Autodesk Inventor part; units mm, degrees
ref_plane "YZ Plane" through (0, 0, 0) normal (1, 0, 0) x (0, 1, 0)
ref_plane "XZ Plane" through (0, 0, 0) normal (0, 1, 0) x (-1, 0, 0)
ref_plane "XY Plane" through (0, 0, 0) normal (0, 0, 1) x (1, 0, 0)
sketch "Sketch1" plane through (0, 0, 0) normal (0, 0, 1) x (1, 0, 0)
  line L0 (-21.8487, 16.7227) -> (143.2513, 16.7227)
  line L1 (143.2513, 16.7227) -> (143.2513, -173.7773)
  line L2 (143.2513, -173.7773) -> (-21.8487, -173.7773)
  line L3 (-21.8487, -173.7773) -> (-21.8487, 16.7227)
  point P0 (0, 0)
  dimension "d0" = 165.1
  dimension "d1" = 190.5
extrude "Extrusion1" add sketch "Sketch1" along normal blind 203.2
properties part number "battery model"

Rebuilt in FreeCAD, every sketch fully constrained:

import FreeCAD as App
import Part
import Sketcher
from FreeCAD import Vector
Q = App.Units.Quantity

doc = App.newDocument("Part")
body = doc.addObject("PartDesign::Body", "Body")

# Sketch on XY plane
sketch1 = body.newObject("Sketcher::SketchObject", "Sketch")
sketch1.AttachmentSupport = (doc.getObject("XY_Plane"), [""])
sketch1.MapMode = "FlatFace"
sketch1.addGeometry([
    Part.LineSegment(Vector(143, 17, 0), Vector(-22, 17, 0)),
    Part.LineSegment(Vector(-22, 17, 0), Vector(-22, -174, 0)),
    Part.LineSegment(Vector(-22, -174, 0), Vector(143, -174, 0)),
    Part.LineSegment(Vector(143, -174, 0), Vector(143, 17, 0)),
], False)
sketch1.addConstraint([
    Sketcher.Constraint("Coincident", 0, 2, 1, 1),
    Sketcher.Constraint("Coincident", 1, 2, 2, 1),
    Sketcher.Constraint("Coincident", 2, 2, 3, 1),
    Sketcher.Constraint("Coincident", 3, 2, 0, 1),
    Sketcher.Constraint("Horizontal", 0),
    Sketcher.Constraint("Vertical", 1),
    Sketcher.Constraint("Horizontal", 2),
    Sketcher.Constraint("Vertical", 3),
    Sketcher.Constraint("DistanceX", 0, 2, 0, 1, Q("6.5 in")),
    Sketcher.Constraint("DistanceY", 1, 2, 1, 1, Q("7.5 in")),
    Sketcher.Constraint("DistanceX", 0, 2, -1, 1, Q("21.8487 mm")),
    Sketcher.Constraint("DistanceY", -1, 1, 0, 2, Q("16.7227 mm")),
])
pad1 = body.newObject("PartDesign::Pad", "Pad")
pad1.Profile = sketch1
pad1.Length = Q("8 in")

doc.recompute()
